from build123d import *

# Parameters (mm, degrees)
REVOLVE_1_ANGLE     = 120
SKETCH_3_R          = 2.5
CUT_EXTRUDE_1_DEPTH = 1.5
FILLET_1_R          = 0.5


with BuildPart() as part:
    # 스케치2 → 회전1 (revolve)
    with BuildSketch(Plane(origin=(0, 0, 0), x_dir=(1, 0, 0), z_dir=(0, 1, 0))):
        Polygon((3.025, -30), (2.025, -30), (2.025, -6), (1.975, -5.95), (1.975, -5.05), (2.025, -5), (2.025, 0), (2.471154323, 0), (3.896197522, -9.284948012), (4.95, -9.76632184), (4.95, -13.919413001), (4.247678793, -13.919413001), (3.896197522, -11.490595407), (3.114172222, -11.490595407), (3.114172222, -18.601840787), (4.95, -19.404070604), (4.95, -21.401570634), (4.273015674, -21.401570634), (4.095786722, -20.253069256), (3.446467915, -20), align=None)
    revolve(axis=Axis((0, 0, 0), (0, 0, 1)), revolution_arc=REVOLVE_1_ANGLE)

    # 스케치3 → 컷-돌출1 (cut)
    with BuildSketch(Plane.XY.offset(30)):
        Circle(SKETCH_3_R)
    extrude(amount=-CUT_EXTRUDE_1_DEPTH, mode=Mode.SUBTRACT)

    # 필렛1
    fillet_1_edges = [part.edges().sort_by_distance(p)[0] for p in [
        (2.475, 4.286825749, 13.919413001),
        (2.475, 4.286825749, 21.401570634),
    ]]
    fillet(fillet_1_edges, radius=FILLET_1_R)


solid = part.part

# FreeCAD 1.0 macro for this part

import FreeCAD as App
import Part
import Sketcher
from FreeCAD import Vector
Q = App.Units.Quantity


def edges_at(feature, points):
    """Names of the edges that pass closest to the given points."""
    edges = feature.Shape.Edges
    near = lambda p: min(range(len(edges)), key=lambda i: edges[i].distToShape(Part.Vertex(*p))[0])
    return sorted({f"Edge{near(p) + 1}" for p in points})

doc = App.newDocument("Part")
body = doc.addObject("PartDesign::Body", "Body")

sketch1 = body.newObject("Sketcher::SketchObject", "Sketch")
sketch1.AttachmentSupport = (doc.getObject("XZ_Plane"), [""])
sketch1.MapMode = "FlatFace"
sketch1.addGeometry([
    Part.LineSegment(Vector(2.025, 30, 0), Vector(3.025, 30, 0)),
    Part.LineSegment(Vector(3.025, 30, 0), Vector(3.446468, 20, 0)),
    Part.LineSegment(Vector(3.446468, 20, 0), Vector(4.095787, 20.253069, 0)),
    Part.LineSegment(Vector(4.095787, 20.253069, 0), Vector(4.273016, 21.401571, 0)),
    Part.LineSegment(Vector(4.273016, 21.401571, 0), Vector(4.95, 21.401571, 0)),
    Part.LineSegment(Vector(4.95, 21.401571, 0), Vector(4.95, 19.404071, 0)),
    Part.LineSegment(Vector(4.95, 19.404071, 0), Vector(3.114172, 18.601841, 0)),
    Part.LineSegment(Vector(3.114172, 18.601841, 0), Vector(3.114172, 11.490595, 0)),
    Part.LineSegment(Vector(3.114172, 11.490595, 0), Vector(3.896198, 11.490595, 0)),
    Part.LineSegment(Vector(3.896198, 11.490595, 0), Vector(4.247679, 13.919413, 0)),
    Part.LineSegment(Vector(4.247679, 13.919413, 0), Vector(4.95, 13.919413, 0)),
    Part.LineSegment(Vector(4.95, 13.919413, 0), Vector(4.95, 9.766322, 0)),
    Part.LineSegment(Vector(4.95, 9.766322, 0), Vector(3.896198, 9.284948, 0)),
    Part.LineSegment(Vector(3.896198, 9.284948, 0), Vector(2.471154, 0, 0)),
    Part.LineSegment(Vector(2.471154, 0, 0), Vector(2.025, 0, 0)),
    Part.LineSegment(Vector(2.025, 0, 0), Vector(2.025, 5, 0)),
    Part.LineSegment(Vector(2.025, 5, 0), Vector(1.975, 5.05, 0)),
    Part.LineSegment(Vector(1.975, 5.05, 0), Vector(1.975, 5.95, 0)),
    Part.LineSegment(Vector(1.975, 5.95, 0), Vector(2.025, 6, 0)),
    Part.LineSegment(Vector(2.025, 6, 0), Vector(2.025, 30, 0)),
], False)
sketch1.addConstraint([
    Sketcher.Constraint("Coincident", 0, 2, 1, 1),
    Sketcher.Constraint("Coincident", 1, 2, 2, 1),
    Sketcher.Constraint("Coincident", 2, 2, 3, 1),
    Sketcher.Constraint("Coincident", 3, 2, 4, 1),
    Sketcher.Constraint("Coincident", 4, 2, 5, 1),
    Sketcher.Constraint("Coincident", 5, 2, 6, 1),
    Sketcher.Constraint("Coincident", 6, 2, 7, 1),
    Sketcher.Constraint("Coincident", 7, 2, 8, 1),
    Sketcher.Constraint("Coincident", 8, 2, 9, 1),
    Sketcher.Constraint("Coincident", 9, 2, 10, 1),
    Sketcher.Constraint("Coincident", 10, 2, 11, 1),
    Sketcher.Constraint("Coincident", 11, 2, 12, 1),
    Sketcher.Constraint("Coincident", 12, 2, 13, 1),
    Sketcher.Constraint("Coincident", 13, 2, 14, 1),
    Sketcher.Constraint("Coincident", 14, 2, 15, 1),
    Sketcher.Constraint("Coincident", 15, 2, 16, 1),
    Sketcher.Constraint("Coincident", 16, 2, 17, 1),
    Sketcher.Constraint("Coincident", 17, 2, 18, 1),
    Sketcher.Constraint("Coincident", 18, 2, 19, 1),
    Sketcher.Constraint("Coincident", 19, 2, 0, 1),
    Sketcher.Constraint("Horizontal", 0),
    Sketcher.Constraint("Horizontal", 4),
    Sketcher.Constraint("Vertical", 5),
    Sketcher.Constraint("Vertical", 7),
    Sketcher.Constraint("Horizontal", 8),
    Sketcher.Constraint("Horizontal", 10),
    Sketcher.Constraint("Vertical", 11),
    Sketcher.Constraint("Horizontal", 14),
    Sketcher.Constraint("Vertical", 15),
    Sketcher.Constraint("Vertical", 17),
    Sketcher.Constraint("Vertical", 19),
    Sketcher.Constraint("PointOnObject", 13, 2, -1),
    Sketcher.Constraint("Perpendicular", 16, 18),
    Sketcher.Constraint("Vertical", 5, 2, 10, 2),
    Sketcher.Constraint("Vertical", 8, 2, 12, 2),
    Sketcher.Constraint("Vertical", 15, 2, 18, 2),
    Sketcher.Constraint("Equal", 16, 18),
    Sketcher.Constraint("DistanceX", 0, 1, 0, 2, Q("1 mm")),
    Sketcher.Constraint("DistanceY", 15, 1, 15, 2, Q("5 mm")),
    Sketcher.Constraint("DistanceY", 19, 1, 19, 2, Q("24 mm")),
    Sketcher.Constraint("DistanceY", 17, 1, 17, 2, Q("0.9 mm")),
    Sketcher.Constraint("DistanceY", -1, 1, 0, 2, Q("30 mm")),
    Sketcher.Constraint("DistanceY", -1, 1, 1, 2, Q("20 mm")),
    Sketcher.Constraint("DistanceX", -1, 1, 4, 2, Q("4.95 mm")),
    Sketcher.Constraint("DistanceY", 5, 2, 5, 1, Q("1.9975 mm")),
    Sketcher.Constraint("DistanceX", -1, 1, 0, 2, Q("3.025 mm")),
    Sketcher.Constraint("DistanceY", 5, 2, 2, 2, Q("0.848999 mm")),
    Sketcher.Constraint("DistanceX", 10, 1, 10, 2, Q("0.702321 mm")),
    Sketcher.Constraint("DistanceY", 11, 2, 11, 1, Q("4.153091 mm")),
    Sketcher.Constraint("Distance", 13, Q("9.393668 mm")),
    Sketcher.Constraint("DistanceX", 4, 1, 4, 2, Q("0.676984 mm")),
    Sketcher.Constraint("DistanceX", 8, 1, 8, 2, Q("0.782025 mm")),
    Sketcher.Constraint("DistanceX", 14, 2, 14, 1, Q("0.446154 mm")),
    Sketcher.Constraint("DistanceY", 7, 2, 7, 1, Q("7.111245 mm")),
    Sketcher.Constraint("DistanceY", -1, 1, 2, 2, Q("20.253069 mm")),
    Sketcher.Constraint("DistanceY", -1, 1, 6, 2, Q("18.601841 mm")),
    Sketcher.Constraint("DistanceY", -1, 1, 11, 2, Q("9.766322 mm")),
    Sketcher.Constraint("DistanceY", -1, 1, 12, 2, Q("9.284948 mm")),
    Sketcher.Constraint("DistanceX", 1, 2, 2, 2, Q("0.649319 mm")),
    Sketcher.Constraint("DistanceX", 2, 2, 3, 2, Q("0.177229 mm")),
])
revolution = body.newObject("PartDesign::Revolution", "Revolution")
revolution.Profile = sketch1
revolution.ReferenceAxis = (sketch1, ["V_Axis"])
revolution.Angle = 120

sketch2 = body.newObject("Sketcher::SketchObject", "Sketch001")
sketch2.AttachmentSupport = (doc.getObject("XY_Plane"), [""])
sketch2.MapMode = "FlatFace"
sketch2.AttachmentOffset = App.Placement(Vector(0, 0, 30), App.Rotation())
sketch2.addGeometry(Part.Circle(Vector(0, 0, 0), Vector(0, 0, 1), 2.5), False)
sketch2.addConstraint([
    Sketcher.Constraint("Coincident", 0, 3, -1, 1),
    Sketcher.Constraint("Diameter", 0, Q("5 mm")),
])
pocket1 = body.newObject("PartDesign::Pocket", "Pocket")
pocket1.Profile = sketch2
pocket1.Length = 1.5
doc.recompute()

fillet = body.newObject("PartDesign::Fillet", "Fillet")
fillet.Base = (pocket1, edges_at(pocket1, [(2.475, 4.287, 13.919), (2.475, 4.287, 21.402)]))
fillet.Radius = 0.5

doc.recompute()
